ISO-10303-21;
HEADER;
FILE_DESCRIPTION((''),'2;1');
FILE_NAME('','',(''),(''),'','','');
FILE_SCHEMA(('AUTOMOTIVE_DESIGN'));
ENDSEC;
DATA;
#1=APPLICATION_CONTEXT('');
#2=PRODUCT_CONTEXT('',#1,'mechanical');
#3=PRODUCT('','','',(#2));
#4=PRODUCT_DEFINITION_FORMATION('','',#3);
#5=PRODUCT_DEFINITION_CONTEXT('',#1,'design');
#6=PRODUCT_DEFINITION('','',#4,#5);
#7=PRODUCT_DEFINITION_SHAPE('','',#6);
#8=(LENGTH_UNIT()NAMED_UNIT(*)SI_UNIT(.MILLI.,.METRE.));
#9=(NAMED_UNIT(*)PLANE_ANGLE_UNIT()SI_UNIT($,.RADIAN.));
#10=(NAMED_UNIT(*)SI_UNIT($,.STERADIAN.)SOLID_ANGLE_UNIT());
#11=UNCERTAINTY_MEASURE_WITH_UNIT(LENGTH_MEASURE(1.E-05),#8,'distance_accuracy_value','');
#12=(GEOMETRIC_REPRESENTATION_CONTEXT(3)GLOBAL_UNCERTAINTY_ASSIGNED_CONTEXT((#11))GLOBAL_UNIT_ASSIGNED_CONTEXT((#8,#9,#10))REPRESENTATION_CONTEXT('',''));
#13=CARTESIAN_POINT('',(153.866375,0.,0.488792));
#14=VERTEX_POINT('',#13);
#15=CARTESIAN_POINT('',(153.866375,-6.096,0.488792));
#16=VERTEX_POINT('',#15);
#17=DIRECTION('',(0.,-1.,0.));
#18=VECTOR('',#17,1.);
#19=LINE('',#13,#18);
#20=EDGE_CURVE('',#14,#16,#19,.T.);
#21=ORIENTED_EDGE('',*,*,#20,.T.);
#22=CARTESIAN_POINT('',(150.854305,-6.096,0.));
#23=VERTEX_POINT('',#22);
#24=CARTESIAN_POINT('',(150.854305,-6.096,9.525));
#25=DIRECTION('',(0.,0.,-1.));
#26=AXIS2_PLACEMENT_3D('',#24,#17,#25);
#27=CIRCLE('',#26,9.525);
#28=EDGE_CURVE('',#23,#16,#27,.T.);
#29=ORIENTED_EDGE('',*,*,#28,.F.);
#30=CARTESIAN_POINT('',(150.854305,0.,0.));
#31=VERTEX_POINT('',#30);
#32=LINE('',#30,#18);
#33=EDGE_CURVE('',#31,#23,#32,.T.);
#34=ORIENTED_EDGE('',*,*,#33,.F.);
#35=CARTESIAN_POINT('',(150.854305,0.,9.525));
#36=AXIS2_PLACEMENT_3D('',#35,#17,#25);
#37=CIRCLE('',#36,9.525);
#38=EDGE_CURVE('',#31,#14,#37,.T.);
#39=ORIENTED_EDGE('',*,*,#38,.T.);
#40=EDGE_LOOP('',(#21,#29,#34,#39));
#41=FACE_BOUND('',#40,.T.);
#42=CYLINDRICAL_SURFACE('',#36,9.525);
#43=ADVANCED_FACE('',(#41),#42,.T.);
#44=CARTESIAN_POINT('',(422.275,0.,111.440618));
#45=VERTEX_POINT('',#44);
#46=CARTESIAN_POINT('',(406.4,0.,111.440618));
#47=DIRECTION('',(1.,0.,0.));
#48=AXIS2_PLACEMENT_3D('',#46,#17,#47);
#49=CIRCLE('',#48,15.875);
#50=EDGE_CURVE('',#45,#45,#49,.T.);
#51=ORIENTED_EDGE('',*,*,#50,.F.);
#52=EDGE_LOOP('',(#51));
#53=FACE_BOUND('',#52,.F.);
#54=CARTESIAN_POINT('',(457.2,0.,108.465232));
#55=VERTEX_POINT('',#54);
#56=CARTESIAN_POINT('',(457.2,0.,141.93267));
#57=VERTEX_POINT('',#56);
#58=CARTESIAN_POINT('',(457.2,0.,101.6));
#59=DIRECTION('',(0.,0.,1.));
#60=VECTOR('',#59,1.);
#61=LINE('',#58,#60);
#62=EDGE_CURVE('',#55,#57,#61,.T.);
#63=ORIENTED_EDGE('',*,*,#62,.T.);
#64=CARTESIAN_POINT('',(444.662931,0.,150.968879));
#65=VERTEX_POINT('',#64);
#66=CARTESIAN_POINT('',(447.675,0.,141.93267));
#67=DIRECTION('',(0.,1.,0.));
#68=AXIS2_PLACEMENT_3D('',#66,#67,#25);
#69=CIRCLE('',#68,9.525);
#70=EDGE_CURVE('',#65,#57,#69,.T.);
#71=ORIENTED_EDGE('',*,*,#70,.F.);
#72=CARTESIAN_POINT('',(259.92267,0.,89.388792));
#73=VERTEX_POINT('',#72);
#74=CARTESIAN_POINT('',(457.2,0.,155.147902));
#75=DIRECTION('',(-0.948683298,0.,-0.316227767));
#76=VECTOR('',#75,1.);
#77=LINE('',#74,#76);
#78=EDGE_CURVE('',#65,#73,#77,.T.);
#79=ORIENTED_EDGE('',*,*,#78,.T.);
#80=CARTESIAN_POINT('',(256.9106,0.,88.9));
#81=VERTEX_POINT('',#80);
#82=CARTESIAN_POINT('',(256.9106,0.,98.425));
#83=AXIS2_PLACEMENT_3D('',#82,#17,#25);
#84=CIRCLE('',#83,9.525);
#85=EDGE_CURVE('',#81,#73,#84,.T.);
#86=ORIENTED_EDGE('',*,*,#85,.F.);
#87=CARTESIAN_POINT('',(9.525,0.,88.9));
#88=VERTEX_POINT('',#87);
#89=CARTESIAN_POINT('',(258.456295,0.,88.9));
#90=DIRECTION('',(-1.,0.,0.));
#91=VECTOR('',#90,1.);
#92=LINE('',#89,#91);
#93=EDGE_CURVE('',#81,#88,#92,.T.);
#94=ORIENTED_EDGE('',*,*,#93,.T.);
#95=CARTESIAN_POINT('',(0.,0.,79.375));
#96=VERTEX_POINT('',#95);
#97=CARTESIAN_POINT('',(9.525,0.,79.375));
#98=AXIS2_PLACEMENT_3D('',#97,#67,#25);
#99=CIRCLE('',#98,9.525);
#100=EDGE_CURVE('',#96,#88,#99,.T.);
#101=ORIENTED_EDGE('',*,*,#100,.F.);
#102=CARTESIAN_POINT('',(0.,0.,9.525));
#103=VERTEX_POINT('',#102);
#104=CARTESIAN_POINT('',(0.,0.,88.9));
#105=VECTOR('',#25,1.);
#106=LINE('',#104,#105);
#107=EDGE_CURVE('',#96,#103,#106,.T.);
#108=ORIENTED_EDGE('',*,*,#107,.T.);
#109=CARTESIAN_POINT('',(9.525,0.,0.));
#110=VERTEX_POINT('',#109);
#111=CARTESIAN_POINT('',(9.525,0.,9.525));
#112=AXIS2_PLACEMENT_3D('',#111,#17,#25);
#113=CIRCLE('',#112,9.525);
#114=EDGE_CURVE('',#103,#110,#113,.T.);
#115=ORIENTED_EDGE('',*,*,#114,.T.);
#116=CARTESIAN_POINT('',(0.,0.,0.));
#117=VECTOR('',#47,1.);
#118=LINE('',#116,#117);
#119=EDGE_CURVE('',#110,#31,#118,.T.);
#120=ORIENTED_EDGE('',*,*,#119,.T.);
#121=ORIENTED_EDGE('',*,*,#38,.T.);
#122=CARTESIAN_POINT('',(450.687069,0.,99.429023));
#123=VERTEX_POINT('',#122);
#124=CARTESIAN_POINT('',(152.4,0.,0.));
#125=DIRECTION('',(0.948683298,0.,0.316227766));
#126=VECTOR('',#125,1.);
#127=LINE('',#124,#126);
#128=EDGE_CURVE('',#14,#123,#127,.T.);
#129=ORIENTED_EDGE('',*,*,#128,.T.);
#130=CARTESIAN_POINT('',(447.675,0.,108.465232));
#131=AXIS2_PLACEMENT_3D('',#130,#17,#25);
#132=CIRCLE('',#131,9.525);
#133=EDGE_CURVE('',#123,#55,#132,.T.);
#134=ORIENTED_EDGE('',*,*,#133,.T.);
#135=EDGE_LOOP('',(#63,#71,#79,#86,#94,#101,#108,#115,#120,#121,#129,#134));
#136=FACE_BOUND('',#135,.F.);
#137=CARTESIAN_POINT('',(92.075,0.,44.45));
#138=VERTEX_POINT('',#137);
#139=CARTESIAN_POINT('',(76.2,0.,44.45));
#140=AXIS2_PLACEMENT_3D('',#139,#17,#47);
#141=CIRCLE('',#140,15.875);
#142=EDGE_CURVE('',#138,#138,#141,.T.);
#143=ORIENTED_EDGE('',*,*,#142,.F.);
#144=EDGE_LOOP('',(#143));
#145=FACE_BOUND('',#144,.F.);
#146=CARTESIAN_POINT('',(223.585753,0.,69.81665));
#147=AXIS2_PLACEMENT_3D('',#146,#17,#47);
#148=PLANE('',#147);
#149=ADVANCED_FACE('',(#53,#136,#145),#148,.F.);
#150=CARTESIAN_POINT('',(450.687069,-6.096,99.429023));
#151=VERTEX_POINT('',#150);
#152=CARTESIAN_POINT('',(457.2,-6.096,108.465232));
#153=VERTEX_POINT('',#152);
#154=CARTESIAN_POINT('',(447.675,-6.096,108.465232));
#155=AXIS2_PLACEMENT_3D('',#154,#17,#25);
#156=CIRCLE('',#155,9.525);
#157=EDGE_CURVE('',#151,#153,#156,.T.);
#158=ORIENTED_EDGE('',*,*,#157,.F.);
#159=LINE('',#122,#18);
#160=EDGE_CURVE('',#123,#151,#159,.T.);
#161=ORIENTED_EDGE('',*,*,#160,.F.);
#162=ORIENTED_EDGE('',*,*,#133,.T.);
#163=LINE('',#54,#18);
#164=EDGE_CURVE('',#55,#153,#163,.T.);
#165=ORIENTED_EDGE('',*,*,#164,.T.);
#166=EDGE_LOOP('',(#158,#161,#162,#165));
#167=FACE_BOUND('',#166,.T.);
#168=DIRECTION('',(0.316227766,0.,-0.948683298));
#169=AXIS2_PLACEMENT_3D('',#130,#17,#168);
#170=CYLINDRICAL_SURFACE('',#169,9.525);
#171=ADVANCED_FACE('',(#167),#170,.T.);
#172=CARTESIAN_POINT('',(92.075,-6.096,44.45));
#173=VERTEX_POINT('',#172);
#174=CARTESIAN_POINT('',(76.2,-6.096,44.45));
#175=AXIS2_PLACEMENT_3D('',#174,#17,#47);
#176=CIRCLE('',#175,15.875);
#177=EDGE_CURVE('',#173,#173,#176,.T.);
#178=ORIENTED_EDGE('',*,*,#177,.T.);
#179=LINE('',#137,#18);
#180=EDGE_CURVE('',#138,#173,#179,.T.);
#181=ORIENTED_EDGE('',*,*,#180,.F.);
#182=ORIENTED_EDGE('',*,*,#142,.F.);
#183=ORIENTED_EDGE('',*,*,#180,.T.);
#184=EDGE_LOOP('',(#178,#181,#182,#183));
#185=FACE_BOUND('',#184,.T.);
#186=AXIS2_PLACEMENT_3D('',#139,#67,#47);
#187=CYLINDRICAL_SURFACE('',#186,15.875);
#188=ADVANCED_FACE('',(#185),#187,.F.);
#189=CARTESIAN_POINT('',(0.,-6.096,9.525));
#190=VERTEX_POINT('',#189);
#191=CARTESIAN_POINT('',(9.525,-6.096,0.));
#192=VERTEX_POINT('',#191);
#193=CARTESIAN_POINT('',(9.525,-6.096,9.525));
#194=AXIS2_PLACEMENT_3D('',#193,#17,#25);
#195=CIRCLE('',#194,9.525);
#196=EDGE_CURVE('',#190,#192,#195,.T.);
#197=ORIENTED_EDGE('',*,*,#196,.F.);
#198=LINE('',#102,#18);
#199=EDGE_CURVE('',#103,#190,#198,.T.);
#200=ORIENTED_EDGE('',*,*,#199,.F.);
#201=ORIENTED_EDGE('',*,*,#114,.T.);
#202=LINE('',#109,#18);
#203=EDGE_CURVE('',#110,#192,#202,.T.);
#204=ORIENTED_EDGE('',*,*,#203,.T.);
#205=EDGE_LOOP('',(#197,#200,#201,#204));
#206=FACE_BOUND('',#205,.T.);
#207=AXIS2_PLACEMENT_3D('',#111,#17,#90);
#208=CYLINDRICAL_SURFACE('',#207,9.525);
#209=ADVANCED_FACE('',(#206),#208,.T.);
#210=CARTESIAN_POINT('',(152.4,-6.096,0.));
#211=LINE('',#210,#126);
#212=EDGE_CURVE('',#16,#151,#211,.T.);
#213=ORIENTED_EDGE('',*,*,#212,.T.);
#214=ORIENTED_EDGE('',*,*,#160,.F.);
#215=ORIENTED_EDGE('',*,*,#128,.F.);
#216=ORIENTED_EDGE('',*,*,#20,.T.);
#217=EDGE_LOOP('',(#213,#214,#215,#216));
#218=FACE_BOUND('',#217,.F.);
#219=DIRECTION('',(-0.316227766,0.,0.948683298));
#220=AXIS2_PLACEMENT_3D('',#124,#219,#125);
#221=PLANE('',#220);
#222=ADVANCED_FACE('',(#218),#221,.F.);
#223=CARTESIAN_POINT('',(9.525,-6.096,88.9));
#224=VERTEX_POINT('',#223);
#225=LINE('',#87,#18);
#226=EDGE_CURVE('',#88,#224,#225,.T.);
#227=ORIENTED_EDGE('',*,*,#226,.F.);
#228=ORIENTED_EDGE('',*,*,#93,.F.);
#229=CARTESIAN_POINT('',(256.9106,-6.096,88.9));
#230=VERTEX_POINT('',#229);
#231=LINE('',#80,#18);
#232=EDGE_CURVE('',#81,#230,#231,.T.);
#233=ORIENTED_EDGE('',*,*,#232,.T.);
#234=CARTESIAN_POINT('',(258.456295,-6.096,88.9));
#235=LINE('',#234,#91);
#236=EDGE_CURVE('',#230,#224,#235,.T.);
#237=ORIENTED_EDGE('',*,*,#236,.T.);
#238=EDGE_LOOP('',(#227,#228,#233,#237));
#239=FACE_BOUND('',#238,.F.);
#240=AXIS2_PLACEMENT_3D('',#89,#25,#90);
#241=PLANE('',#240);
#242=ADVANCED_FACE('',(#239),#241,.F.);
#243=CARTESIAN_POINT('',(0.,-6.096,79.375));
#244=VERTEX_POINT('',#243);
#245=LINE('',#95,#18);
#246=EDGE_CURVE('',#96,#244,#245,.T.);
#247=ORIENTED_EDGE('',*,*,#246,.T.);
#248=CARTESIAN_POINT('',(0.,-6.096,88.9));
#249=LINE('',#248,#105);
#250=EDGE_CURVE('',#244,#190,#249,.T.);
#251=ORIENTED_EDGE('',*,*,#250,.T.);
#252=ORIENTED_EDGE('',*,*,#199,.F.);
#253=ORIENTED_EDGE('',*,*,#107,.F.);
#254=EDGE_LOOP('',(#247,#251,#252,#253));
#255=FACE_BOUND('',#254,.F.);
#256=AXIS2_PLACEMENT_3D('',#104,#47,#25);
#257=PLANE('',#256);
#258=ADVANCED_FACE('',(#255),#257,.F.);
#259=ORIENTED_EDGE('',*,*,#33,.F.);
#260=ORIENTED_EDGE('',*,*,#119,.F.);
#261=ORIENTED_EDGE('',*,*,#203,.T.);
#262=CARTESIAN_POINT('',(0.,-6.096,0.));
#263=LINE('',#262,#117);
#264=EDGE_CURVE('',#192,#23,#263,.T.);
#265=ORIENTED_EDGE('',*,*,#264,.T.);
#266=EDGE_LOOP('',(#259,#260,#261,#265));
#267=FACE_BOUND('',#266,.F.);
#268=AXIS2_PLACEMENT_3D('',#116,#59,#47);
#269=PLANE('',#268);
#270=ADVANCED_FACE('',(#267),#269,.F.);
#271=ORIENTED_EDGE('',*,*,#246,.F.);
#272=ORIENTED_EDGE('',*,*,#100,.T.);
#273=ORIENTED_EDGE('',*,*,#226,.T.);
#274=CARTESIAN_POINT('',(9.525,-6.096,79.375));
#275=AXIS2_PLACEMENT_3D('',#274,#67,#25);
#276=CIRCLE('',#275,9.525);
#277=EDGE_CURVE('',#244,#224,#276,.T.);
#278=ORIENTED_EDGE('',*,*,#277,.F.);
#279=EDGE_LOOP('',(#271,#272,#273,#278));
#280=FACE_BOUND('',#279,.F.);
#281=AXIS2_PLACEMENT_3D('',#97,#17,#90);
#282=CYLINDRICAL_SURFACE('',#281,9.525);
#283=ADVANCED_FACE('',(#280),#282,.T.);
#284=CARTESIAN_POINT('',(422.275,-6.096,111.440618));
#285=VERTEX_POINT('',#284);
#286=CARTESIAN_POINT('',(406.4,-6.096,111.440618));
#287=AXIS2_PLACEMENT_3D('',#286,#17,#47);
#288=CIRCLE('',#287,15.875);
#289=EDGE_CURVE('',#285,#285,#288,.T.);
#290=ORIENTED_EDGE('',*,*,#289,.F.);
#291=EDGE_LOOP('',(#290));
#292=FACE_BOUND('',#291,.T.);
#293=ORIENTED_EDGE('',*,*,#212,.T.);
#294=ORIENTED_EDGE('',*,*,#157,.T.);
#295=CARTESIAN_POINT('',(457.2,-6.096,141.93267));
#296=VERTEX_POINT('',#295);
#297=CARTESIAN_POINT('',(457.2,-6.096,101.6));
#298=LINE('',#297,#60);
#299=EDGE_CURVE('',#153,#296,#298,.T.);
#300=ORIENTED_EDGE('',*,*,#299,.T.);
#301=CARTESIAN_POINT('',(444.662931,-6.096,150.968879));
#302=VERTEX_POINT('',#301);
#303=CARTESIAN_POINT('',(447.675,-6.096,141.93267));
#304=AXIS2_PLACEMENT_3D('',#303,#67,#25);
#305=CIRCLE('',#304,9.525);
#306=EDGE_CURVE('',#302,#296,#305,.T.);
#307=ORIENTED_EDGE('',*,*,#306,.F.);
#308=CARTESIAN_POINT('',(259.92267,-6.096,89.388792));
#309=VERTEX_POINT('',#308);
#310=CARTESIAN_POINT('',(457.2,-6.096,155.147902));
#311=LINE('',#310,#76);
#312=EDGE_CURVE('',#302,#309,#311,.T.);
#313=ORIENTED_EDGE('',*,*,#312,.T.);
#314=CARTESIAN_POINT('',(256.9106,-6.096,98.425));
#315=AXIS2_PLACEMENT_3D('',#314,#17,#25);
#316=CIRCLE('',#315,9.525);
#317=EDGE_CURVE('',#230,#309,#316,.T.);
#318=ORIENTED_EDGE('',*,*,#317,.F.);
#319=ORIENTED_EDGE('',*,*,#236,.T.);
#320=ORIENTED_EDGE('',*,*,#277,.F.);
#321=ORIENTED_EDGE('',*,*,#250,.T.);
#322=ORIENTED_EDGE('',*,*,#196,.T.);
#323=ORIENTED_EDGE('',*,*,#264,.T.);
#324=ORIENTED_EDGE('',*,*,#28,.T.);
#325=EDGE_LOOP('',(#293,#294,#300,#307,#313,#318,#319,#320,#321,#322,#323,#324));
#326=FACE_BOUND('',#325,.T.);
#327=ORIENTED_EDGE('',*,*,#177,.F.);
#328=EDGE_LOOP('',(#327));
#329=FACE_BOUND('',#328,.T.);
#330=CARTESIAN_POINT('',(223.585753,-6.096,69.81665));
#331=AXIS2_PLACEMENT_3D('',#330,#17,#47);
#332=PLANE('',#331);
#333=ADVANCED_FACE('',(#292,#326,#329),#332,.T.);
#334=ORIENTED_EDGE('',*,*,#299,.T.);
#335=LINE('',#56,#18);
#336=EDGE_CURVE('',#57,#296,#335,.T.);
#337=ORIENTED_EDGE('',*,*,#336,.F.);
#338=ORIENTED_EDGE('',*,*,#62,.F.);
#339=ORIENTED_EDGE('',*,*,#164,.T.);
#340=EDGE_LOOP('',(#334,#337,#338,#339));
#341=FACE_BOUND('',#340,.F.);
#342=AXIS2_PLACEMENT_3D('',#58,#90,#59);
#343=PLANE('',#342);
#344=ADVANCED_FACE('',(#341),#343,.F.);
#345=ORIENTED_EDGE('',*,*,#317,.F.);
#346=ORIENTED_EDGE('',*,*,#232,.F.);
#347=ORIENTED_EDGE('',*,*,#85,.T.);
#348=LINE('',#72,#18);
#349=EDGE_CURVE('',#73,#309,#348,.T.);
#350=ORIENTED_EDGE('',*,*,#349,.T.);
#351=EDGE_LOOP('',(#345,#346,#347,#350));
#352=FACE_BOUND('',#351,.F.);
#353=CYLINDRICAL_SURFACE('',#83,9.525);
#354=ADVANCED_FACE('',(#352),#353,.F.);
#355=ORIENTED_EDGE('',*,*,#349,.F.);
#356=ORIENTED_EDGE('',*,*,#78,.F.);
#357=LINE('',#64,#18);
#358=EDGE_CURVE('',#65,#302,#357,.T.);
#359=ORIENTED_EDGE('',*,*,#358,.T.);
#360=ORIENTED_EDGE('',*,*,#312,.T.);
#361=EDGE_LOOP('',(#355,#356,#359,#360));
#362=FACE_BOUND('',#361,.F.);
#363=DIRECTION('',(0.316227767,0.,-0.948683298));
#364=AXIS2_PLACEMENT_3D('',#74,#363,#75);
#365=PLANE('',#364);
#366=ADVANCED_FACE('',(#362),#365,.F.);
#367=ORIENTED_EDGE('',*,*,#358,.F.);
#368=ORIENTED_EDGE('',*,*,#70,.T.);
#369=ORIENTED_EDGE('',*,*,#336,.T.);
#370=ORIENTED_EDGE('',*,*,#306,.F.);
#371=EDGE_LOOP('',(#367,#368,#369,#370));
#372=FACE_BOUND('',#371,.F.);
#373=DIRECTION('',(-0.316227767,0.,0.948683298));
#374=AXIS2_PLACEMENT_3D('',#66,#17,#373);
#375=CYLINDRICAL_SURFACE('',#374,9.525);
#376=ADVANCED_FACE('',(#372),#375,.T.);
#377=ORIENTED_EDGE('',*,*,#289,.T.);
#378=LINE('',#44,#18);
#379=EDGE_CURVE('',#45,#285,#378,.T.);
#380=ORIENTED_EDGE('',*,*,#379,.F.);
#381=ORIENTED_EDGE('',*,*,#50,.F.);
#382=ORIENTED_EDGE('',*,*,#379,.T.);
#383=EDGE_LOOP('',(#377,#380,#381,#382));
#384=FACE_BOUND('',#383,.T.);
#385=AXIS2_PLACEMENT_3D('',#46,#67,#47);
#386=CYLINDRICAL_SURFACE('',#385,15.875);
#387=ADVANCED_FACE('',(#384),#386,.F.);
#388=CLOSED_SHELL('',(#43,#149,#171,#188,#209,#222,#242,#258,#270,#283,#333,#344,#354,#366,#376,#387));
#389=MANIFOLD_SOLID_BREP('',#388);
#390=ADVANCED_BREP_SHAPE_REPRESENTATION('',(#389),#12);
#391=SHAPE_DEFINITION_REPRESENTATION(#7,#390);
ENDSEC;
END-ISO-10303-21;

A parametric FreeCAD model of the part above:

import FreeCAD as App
import Part
import Sketcher
from FreeCAD import Vector
Q = App.Units.Quantity


def edges_at(feature, points):
    """Names of the edges that pass closest to the given points."""
    edges = feature.Shape.Edges
    near = lambda p: min(range(len(edges)), key=lambda i: edges[i].distToShape(Part.Vertex(*p))[0])
    return sorted({f"Edge{near(p) + 1}" for p in points})


def add_polygon(sketch, points):
    """Adds a closed chain of lines whose ends are joined by coincident constraints."""
    first, n = sketch.GeometryCount, len(points)
    for a, b in zip(points, points[1:] + points[:1]):
        sketch.addGeometry(Part.LineSegment(App.Vector(*a, 0), App.Vector(*b, 0)), False)
    for i in range(n):
        sketch.addConstraint(Sketcher.Constraint("Coincident", first + i, 2, first + (i + 1) % n, 1))

doc = App.newDocument("Part")
body = doc.addObject("PartDesign::Body", "Body")

# Sketch on XZ plane
sketch1 = body.newObject("Sketcher::SketchObject", "Sketch")
sketch1.AttachmentSupport = (doc.getObject("XZ_Plane"), [""])
sketch1.MapMode = "FlatFace"
add_polygon(sketch1, [(0, 89), (0, 0), (152, 0), (457, 102), (457, 155), (258, 89)])  # lines 0-5
sketch1.addGeometry(Part.Circle(Vector(76, 44, 0), Vector(0, 0, 1), 16), False)  # 6
sketch1.addGeometry(Part.Circle(Vector(406, 111, 0), Vector(0, 0, 1), 16), False)  # 7
sketch1.addConstraint(Sketcher.Constraint("Vertical", 0))
sketch1.addConstraint(Sketcher.Constraint("Horizontal", 1))
sketch1.addConstraint(Sketcher.Constraint("Vertical", 3))
sketch1.addConstraint(Sketcher.Constraint("Horizontal", 5))
sketch1.addConstraint(Sketcher.Constraint("Coincident", 0, 2, -1, 1))
sketch1.addConstraint(Sketcher.Constraint("Equal", 6, 7))
sketch1.addConstraint(Sketcher.Constraint("Parallel", 2, 4))
sketch1.addConstraint(Sketcher.Constraint("Diameter", 6, Q("1.25 in")))
sketch1.addConstraint(Sketcher.Constraint("DistanceX", 1, 1, 1, 2, Q("6 in")))
sketch1.addConstraint(Sketcher.Constraint("DistanceY", 0, 2, 0, 1, Q("3.5 in")))
sketch1.addConstraint(Sketcher.Constraint("DistanceX", -1, 1, 6, 3, Q("3 in")))
sketch1.addConstraint(Sketcher.Constraint("DistanceX", -1, 1, 7, 3, Q("16 in")))
sketch1.addConstraint(Sketcher.Constraint("DistanceX", -1, 1, 2, 2, Q("18 in")))
sketch1.addConstraint(Sketcher.Constraint("DistanceY", -1, 1, 2, 2, Q("4 in")))
sketch1.addConstraint(Sketcher.Constraint("DistanceY", -1, 1, 6, 3, Q("1.75 in")))
sketch1.addConstraint(Sketcher.Constraint("DistanceY", 3, 1, 3, 2, 53.547902))
sketch1.addConstraint(Sketcher.Constraint("DistanceY", -1, 1, 7, 3, 111.440618))
pad1 = body.newObject("PartDesign::Pad", "Pad")
pad1.Profile = sketch1
pad1.Length = Q("0.24 in")
doc.recompute()

fillet = body.newObject("PartDesign::Fillet", "Fillet")
fillet.Base = (pad1, edges_at(pad1, [
    (457.2, -3.048, 101.6),
    (457.2, -3.048, 155.148),
    (258.456, -3.048, 88.9),
    (0, -3.048, 88.9),
    (0, -3.048, 0),
    (152.4, -3.048, 0),
]))
fillet.Radius = Q("0.375 in")

doc.recompute()
